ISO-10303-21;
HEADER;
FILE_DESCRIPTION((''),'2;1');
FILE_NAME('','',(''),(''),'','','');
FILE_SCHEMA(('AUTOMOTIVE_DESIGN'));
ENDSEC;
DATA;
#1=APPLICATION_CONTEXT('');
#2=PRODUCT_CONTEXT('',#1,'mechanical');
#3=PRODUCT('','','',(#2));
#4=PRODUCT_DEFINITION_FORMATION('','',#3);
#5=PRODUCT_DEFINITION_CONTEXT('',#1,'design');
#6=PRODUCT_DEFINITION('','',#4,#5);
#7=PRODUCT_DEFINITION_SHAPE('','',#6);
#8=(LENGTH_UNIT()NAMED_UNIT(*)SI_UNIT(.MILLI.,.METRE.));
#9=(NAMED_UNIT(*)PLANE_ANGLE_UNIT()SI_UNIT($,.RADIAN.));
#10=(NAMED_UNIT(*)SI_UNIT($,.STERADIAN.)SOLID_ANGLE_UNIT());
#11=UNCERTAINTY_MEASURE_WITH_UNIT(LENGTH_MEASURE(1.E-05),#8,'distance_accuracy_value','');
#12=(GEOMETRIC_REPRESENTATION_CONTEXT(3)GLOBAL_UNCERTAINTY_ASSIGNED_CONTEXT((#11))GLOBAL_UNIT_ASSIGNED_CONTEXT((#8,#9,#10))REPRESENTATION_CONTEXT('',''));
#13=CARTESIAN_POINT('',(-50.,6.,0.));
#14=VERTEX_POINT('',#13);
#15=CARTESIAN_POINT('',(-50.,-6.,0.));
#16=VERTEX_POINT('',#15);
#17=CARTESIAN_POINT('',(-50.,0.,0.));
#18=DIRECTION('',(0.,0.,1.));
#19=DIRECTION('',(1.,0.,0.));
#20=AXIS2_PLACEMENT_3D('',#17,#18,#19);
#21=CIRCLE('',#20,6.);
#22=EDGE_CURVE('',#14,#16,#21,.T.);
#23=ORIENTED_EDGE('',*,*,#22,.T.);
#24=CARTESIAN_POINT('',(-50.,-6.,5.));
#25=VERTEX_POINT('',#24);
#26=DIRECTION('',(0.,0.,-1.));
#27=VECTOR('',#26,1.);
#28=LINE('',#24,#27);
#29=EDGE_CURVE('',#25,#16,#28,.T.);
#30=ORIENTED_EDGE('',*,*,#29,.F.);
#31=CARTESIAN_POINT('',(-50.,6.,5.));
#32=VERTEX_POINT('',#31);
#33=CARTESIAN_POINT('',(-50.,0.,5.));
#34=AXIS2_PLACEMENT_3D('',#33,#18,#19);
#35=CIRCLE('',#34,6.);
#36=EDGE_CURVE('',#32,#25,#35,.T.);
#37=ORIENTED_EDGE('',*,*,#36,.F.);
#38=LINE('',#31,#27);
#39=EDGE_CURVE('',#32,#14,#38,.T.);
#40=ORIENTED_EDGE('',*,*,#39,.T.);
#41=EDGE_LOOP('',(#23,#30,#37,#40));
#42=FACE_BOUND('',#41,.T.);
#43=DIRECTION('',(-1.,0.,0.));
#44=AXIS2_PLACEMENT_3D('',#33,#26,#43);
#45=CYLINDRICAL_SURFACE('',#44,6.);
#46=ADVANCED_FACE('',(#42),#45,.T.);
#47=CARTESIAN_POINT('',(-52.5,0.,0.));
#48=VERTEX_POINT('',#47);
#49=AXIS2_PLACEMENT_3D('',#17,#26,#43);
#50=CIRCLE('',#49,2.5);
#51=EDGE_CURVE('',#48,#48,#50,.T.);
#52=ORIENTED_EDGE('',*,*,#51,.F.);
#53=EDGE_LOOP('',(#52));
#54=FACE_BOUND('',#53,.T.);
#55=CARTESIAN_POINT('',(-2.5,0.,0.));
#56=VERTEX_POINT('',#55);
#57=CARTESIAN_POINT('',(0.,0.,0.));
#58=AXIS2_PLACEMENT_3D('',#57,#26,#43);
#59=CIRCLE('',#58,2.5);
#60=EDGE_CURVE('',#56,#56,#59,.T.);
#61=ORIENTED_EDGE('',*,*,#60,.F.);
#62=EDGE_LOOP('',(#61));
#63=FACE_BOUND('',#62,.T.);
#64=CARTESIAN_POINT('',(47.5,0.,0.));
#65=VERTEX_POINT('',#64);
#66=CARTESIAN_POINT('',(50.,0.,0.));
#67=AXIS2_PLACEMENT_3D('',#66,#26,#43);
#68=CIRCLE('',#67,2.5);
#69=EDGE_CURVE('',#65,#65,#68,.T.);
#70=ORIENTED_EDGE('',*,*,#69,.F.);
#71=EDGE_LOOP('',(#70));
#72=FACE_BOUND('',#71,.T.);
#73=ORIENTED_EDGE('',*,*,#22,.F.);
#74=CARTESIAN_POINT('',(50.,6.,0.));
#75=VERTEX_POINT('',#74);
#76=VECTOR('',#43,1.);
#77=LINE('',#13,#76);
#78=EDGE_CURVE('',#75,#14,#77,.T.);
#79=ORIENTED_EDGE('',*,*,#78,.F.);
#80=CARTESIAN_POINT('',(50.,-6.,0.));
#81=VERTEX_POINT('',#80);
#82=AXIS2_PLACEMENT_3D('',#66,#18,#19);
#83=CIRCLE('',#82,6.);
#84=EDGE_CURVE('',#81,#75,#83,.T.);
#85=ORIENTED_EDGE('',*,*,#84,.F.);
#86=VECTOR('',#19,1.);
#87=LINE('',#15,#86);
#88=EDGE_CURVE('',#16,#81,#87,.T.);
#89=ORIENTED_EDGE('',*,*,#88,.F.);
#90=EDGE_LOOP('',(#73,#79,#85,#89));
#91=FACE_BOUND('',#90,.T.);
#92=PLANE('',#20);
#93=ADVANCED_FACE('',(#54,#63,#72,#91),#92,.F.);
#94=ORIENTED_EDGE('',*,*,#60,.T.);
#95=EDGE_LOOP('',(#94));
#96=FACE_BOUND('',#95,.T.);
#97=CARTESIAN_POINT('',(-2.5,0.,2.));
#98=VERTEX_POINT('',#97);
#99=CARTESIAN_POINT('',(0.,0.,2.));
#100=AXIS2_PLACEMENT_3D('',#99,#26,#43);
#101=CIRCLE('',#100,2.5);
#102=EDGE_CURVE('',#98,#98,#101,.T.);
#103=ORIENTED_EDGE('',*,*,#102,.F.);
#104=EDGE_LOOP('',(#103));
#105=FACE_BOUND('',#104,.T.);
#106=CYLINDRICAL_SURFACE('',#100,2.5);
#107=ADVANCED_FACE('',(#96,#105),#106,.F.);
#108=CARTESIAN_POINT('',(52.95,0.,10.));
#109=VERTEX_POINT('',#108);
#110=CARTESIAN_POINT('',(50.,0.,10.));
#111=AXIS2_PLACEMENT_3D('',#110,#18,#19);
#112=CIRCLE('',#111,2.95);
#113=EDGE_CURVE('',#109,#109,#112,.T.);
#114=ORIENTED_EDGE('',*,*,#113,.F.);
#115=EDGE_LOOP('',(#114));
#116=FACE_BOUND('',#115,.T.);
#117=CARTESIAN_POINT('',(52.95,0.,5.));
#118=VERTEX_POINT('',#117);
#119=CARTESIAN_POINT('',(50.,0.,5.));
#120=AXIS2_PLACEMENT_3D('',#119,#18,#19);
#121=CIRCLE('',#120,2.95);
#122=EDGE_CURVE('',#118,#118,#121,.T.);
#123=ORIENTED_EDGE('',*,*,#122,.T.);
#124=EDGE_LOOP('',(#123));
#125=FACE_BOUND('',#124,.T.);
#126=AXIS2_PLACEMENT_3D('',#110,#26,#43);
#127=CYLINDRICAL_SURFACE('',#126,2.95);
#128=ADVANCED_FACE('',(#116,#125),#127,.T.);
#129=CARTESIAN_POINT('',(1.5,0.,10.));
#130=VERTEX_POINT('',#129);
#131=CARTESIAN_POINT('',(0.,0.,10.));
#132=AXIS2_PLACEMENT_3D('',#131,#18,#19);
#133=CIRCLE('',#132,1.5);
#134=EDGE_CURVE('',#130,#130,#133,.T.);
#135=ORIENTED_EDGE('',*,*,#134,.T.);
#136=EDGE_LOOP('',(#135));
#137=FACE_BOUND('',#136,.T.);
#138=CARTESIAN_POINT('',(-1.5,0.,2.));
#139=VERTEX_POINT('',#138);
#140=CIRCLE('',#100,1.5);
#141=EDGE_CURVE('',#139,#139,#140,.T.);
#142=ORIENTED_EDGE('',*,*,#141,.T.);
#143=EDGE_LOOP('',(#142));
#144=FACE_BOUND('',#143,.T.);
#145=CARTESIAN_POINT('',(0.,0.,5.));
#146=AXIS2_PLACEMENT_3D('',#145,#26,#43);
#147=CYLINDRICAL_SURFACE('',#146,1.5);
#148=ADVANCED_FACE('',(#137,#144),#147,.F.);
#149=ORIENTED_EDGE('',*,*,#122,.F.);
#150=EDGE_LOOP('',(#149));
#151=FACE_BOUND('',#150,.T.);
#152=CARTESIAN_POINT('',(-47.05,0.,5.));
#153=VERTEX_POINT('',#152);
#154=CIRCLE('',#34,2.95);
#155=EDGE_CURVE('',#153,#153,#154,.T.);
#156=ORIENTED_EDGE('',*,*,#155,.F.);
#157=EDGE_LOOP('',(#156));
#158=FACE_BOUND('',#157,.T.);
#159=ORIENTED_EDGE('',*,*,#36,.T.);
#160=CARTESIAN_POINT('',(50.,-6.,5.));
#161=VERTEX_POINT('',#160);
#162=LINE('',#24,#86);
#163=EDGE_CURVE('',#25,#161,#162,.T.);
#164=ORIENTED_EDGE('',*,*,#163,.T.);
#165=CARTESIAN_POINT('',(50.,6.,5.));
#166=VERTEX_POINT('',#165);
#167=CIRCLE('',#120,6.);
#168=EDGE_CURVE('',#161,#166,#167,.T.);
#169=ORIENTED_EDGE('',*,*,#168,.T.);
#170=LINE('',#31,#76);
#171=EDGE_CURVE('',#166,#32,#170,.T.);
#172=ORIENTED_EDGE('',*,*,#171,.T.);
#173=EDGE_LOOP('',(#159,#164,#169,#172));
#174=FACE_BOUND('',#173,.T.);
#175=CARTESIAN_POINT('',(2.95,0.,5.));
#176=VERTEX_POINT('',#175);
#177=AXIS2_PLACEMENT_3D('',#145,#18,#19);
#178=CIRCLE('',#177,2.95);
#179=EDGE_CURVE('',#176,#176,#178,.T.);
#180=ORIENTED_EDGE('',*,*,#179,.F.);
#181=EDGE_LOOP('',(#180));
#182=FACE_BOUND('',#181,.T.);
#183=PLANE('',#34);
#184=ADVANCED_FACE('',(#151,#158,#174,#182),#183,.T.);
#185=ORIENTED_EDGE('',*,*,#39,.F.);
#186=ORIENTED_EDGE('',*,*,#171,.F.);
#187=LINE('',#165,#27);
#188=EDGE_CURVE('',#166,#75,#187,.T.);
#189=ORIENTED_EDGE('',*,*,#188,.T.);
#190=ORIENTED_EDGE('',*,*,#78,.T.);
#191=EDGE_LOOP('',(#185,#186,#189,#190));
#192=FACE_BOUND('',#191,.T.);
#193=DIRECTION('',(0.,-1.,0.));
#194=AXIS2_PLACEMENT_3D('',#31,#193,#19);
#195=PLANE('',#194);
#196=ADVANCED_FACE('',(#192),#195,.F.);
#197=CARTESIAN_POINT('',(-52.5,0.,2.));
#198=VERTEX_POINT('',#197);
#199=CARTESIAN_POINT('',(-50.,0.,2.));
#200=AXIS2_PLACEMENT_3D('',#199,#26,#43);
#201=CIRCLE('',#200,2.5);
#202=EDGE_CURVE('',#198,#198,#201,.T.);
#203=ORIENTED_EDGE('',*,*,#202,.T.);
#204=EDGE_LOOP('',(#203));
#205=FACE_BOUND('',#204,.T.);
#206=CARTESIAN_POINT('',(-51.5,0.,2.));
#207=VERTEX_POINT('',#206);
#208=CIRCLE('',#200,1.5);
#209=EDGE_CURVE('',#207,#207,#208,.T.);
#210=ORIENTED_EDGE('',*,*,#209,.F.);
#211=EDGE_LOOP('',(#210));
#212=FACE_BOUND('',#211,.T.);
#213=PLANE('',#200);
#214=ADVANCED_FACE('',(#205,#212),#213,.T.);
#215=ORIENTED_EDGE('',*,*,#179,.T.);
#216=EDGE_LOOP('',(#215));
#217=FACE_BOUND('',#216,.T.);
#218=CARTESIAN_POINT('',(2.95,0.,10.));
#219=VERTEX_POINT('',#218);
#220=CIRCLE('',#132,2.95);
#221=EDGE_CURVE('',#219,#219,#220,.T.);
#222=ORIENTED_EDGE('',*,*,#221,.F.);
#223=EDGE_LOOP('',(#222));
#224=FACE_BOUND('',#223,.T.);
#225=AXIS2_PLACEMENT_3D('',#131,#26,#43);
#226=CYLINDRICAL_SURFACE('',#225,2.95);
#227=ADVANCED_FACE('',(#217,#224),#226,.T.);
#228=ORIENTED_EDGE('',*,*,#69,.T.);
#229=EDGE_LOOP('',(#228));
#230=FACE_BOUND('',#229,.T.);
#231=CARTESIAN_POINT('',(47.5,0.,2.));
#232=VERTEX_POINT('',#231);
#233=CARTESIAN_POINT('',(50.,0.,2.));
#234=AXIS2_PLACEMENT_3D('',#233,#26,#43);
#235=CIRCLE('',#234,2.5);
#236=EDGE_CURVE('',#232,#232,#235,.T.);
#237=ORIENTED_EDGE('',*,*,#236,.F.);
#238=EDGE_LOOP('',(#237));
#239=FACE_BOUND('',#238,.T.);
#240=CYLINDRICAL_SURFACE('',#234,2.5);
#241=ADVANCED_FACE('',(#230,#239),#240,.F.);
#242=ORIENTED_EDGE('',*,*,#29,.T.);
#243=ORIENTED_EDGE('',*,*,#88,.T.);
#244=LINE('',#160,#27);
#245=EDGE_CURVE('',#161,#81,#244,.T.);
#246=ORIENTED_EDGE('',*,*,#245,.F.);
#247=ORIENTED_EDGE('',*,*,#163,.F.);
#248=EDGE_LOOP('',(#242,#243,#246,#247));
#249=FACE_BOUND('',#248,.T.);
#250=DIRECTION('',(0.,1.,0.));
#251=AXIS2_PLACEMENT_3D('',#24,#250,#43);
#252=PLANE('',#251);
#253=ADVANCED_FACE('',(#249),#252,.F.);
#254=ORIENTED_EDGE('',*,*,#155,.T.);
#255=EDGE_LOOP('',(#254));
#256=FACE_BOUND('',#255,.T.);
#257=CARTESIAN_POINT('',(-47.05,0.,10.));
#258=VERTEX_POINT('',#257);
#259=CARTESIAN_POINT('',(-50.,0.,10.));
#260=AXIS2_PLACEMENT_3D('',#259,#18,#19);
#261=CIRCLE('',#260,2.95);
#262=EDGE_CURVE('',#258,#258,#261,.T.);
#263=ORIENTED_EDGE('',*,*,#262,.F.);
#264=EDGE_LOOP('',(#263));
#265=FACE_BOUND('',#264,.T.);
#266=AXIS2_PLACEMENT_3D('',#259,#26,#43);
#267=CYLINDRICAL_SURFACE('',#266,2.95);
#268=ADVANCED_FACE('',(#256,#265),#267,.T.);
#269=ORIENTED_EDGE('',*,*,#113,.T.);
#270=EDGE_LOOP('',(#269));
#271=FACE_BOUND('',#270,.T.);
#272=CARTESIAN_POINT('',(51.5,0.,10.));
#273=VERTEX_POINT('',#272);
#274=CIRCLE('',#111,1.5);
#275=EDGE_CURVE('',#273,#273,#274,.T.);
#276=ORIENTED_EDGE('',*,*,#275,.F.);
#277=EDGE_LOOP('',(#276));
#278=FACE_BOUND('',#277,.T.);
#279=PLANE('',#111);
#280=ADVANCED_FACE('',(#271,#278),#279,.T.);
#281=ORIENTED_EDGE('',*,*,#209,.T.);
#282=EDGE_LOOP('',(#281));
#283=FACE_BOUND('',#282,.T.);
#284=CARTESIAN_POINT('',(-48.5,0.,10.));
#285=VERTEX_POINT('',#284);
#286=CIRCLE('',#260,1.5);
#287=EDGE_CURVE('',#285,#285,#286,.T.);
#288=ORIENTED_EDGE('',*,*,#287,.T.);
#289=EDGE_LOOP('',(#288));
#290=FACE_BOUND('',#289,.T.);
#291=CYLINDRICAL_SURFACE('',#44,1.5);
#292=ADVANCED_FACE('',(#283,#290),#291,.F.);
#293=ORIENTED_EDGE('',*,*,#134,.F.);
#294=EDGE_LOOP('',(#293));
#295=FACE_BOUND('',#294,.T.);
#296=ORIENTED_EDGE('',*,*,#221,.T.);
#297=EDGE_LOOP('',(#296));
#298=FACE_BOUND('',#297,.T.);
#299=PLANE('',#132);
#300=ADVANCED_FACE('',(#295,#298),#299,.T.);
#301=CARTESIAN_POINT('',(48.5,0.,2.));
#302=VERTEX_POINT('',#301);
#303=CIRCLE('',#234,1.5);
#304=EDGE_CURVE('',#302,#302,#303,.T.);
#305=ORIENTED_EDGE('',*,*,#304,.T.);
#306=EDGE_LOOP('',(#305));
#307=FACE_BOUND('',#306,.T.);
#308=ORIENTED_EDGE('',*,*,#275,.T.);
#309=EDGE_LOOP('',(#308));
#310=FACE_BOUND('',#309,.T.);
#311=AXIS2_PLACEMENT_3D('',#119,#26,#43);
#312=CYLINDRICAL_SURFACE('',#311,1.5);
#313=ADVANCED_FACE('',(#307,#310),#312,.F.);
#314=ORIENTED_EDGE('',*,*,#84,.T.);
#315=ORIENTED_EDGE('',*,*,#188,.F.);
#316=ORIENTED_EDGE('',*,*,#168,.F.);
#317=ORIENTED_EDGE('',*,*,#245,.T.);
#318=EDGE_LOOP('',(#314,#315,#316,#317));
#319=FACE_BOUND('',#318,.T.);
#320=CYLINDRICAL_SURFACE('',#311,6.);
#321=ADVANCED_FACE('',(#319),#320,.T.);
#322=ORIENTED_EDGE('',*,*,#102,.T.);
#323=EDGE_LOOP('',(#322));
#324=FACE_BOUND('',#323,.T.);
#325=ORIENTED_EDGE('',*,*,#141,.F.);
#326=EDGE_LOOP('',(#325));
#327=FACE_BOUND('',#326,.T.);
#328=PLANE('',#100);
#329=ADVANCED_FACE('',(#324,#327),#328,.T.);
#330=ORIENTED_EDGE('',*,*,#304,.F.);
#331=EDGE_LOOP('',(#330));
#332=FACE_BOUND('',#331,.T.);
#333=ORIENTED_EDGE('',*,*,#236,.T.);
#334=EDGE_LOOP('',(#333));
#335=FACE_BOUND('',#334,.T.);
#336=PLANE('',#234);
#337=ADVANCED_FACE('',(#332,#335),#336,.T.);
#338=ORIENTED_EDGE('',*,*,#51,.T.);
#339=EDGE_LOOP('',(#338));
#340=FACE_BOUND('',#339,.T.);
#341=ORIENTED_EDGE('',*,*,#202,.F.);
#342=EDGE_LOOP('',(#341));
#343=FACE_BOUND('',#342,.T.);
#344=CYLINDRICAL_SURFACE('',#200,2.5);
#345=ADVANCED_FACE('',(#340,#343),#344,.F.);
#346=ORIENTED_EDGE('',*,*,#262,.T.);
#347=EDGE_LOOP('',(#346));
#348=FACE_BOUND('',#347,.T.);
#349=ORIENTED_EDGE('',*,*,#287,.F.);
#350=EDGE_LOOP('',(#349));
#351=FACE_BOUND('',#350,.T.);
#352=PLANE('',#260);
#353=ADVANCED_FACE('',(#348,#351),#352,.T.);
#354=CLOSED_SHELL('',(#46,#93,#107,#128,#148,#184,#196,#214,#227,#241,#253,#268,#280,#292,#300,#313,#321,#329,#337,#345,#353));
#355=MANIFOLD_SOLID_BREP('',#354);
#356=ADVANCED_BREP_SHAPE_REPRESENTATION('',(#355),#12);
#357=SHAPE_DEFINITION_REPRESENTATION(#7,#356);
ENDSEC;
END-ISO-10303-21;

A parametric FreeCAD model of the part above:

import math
import FreeCAD as App
import Part
import Sketcher

doc = App.newDocument("Part")
body = doc.addObject("PartDesign::Body", "Body")

# Sketch on XY plane
sketch1 = doc.addObject("Sketcher::SketchObject", "Sketch")
body.addObject(sketch1)
sketch1.AttachmentSupport = (doc.XY_Plane, [""])
sketch1.MapMode = "FlatFace"
sketch1.addGeometry([
    Part.LineSegment(App.Vector(50, 6, 0), App.Vector(-50, 6, 0)),  # 0
    Part.ArcOfCircle(Part.Circle(App.Vector(-50, 0, 0), App.Vector(0, 0, 1), 6), math.radians(90), math.radians(270)),  # 1
    Part.LineSegment(App.Vector(-50, -6, 0), App.Vector(50, -6, 0)),  # 2
    Part.ArcOfCircle(Part.Circle(App.Vector(50, 0, 0), App.Vector(0, 0, 1), 6), math.radians(-90), math.radians(90)),  # 3
    Part.Circle(App.Vector(50, 0, 0), App.Vector(0, 0, 1), 1.5),  # 4
    Part.Circle(App.Vector(0, 0, 0), App.Vector(0, 0, 1), 1.5),  # 5
    Part.Circle(App.Vector(-50, 0, 0), App.Vector(0, 0, 1), 1.5),  # 6
], False)
sketch1.addConstraint([
    Sketcher.Constraint("Tangent", 0, 2, 1, 1),
    Sketcher.Constraint("Tangent", 1, 2, 2, 1),
    Sketcher.Constraint("Tangent", 2, 2, 3, 1),
    Sketcher.Constraint("Tangent", 3, 2, 0, 1),
    Sketcher.Constraint("Horizontal", 0),
    Sketcher.Constraint("Horizontal", 2),
    Sketcher.Constraint("Coincident", 5, 3, -1, 1),
    Sketcher.Constraint("Coincident", 4, 3, 3, 3),
    Sketcher.Constraint("Coincident", 6, 3, 1, 3),
    Sketcher.Constraint("Equal", 4, 5),
    Sketcher.Constraint("Equal", 5, 6),
    Sketcher.Constraint("Symmetric", 1, 3, 3, 3, -1, 1),
    Sketcher.Constraint("Diameter", 4, 3.0),
    Sketcher.Constraint("Radius", 1, 6.0),
    Sketcher.Constraint("DistanceX", 0, 2, 0, 1, 100.0),
])
pad1 = doc.addObject("PartDesign::Pad", "Pad")
body.addObject(pad1)
pad1.Profile = sketch1
pad1.Length = 5

# Sketch on XY plane
sketch2 = doc.addObject("Sketcher::SketchObject", "Sketch001")
body.addObject(sketch2)
sketch2.AttachmentSupport = (doc.XY_Plane, [""])
sketch2.MapMode = "FlatFace"
sketch2.AttachmentOffset = App.Placement(App.Vector(0, 0, 5), App.Rotation())
sketch2.addGeometry([
    Part.Circle(App.Vector(-50, 0, 0), App.Vector(0, 0, 1), 2.95),  # 0
    Part.Circle(App.Vector(-50, 0, 0), App.Vector(0, 0, 1), 1.5),  # 1
    Part.Circle(App.Vector(0, 0, 0), App.Vector(0, 0, 1), 2.95),  # 2
    Part.Circle(App.Vector(0, 0, 0), App.Vector(0, 0, 1), 1.5),  # 3
    Part.Circle(App.Vector(50, 0, 0), App.Vector(0, 0, 1), 2.95),  # 4
    Part.Circle(App.Vector(50, 0, 0), App.Vector(0, 0, 1), 1.5),  # 5
], False)
sketch2.addConstraint([
    Sketcher.Constraint("Coincident", 2, 3, -1, 1),
    Sketcher.Constraint("Coincident", 3, 3, -1, 1),
    Sketcher.Constraint("Coincident", 1, 3, 0, 3),
    Sketcher.Constraint("Coincident", 5, 3, 4, 3),
    Sketcher.Constraint("Equal", 0, 2),
    Sketcher.Constraint("Equal", 1, 3),
    Sketcher.Constraint("Equal", 2, 4),
    Sketcher.Constraint("Equal", 3, 5),
    Sketcher.Constraint("Symmetric", 0, 3, 4, 3, -1, 1),
    Sketcher.Constraint("PointOnObject", 0, 3, -1),
    Sketcher.Constraint("Diameter", 1, 3.0),
    Sketcher.Constraint("Diameter", 0, 5.9),
    Sketcher.Constraint("DistanceX", 0, 3, -1, 1, 50.0),
])
pad2 = doc.addObject("PartDesign::Pad", "Pad001")
body.addObject(pad2)
pad2.Profile = sketch2
pad2.Length = 5

# Sketch on XY plane
sketch3 = doc.addObject("Sketcher::SketchObject", "Sketch002")
body.addObject(sketch3)
sketch3.AttachmentSupport = (doc.XY_Plane, [""])
sketch3.MapMode = "FlatFace"
sketch3.addGeometry([
    Part.Circle(App.Vector(50, 0, 0), App.Vector(0, 0, 1), 2.5),
    Part.Circle(App.Vector(0, 0, 0), App.Vector(0, 0, 1), 2.5),
    Part.Circle(App.Vector(-50, 0, 0), App.Vector(0, 0, 1), 2.5),
], False)
sketch3.addConstraint([
    Sketcher.Constraint("Coincident", 1, 3, -1, 1),
    Sketcher.Constraint("Equal", 0, 1),
    Sketcher.Constraint("Equal", 1, 2),
    Sketcher.Constraint("Symmetric", 0, 3, 2, 3, -1, 1),
    Sketcher.Constraint("PointOnObject", 0, 3, -1),
    Sketcher.Constraint("Diameter", 0, 5.0),
    Sketcher.Constraint("DistanceX", -1, 1, 0, 3, 50.0),
])
pocket1 = doc.addObject("PartDesign::Pocket", "Pocket")
body.addObject(pocket1)
pocket1.Profile = sketch3
pocket1.Length = 2
pocket1.Reversed = True

doc.recompute()
